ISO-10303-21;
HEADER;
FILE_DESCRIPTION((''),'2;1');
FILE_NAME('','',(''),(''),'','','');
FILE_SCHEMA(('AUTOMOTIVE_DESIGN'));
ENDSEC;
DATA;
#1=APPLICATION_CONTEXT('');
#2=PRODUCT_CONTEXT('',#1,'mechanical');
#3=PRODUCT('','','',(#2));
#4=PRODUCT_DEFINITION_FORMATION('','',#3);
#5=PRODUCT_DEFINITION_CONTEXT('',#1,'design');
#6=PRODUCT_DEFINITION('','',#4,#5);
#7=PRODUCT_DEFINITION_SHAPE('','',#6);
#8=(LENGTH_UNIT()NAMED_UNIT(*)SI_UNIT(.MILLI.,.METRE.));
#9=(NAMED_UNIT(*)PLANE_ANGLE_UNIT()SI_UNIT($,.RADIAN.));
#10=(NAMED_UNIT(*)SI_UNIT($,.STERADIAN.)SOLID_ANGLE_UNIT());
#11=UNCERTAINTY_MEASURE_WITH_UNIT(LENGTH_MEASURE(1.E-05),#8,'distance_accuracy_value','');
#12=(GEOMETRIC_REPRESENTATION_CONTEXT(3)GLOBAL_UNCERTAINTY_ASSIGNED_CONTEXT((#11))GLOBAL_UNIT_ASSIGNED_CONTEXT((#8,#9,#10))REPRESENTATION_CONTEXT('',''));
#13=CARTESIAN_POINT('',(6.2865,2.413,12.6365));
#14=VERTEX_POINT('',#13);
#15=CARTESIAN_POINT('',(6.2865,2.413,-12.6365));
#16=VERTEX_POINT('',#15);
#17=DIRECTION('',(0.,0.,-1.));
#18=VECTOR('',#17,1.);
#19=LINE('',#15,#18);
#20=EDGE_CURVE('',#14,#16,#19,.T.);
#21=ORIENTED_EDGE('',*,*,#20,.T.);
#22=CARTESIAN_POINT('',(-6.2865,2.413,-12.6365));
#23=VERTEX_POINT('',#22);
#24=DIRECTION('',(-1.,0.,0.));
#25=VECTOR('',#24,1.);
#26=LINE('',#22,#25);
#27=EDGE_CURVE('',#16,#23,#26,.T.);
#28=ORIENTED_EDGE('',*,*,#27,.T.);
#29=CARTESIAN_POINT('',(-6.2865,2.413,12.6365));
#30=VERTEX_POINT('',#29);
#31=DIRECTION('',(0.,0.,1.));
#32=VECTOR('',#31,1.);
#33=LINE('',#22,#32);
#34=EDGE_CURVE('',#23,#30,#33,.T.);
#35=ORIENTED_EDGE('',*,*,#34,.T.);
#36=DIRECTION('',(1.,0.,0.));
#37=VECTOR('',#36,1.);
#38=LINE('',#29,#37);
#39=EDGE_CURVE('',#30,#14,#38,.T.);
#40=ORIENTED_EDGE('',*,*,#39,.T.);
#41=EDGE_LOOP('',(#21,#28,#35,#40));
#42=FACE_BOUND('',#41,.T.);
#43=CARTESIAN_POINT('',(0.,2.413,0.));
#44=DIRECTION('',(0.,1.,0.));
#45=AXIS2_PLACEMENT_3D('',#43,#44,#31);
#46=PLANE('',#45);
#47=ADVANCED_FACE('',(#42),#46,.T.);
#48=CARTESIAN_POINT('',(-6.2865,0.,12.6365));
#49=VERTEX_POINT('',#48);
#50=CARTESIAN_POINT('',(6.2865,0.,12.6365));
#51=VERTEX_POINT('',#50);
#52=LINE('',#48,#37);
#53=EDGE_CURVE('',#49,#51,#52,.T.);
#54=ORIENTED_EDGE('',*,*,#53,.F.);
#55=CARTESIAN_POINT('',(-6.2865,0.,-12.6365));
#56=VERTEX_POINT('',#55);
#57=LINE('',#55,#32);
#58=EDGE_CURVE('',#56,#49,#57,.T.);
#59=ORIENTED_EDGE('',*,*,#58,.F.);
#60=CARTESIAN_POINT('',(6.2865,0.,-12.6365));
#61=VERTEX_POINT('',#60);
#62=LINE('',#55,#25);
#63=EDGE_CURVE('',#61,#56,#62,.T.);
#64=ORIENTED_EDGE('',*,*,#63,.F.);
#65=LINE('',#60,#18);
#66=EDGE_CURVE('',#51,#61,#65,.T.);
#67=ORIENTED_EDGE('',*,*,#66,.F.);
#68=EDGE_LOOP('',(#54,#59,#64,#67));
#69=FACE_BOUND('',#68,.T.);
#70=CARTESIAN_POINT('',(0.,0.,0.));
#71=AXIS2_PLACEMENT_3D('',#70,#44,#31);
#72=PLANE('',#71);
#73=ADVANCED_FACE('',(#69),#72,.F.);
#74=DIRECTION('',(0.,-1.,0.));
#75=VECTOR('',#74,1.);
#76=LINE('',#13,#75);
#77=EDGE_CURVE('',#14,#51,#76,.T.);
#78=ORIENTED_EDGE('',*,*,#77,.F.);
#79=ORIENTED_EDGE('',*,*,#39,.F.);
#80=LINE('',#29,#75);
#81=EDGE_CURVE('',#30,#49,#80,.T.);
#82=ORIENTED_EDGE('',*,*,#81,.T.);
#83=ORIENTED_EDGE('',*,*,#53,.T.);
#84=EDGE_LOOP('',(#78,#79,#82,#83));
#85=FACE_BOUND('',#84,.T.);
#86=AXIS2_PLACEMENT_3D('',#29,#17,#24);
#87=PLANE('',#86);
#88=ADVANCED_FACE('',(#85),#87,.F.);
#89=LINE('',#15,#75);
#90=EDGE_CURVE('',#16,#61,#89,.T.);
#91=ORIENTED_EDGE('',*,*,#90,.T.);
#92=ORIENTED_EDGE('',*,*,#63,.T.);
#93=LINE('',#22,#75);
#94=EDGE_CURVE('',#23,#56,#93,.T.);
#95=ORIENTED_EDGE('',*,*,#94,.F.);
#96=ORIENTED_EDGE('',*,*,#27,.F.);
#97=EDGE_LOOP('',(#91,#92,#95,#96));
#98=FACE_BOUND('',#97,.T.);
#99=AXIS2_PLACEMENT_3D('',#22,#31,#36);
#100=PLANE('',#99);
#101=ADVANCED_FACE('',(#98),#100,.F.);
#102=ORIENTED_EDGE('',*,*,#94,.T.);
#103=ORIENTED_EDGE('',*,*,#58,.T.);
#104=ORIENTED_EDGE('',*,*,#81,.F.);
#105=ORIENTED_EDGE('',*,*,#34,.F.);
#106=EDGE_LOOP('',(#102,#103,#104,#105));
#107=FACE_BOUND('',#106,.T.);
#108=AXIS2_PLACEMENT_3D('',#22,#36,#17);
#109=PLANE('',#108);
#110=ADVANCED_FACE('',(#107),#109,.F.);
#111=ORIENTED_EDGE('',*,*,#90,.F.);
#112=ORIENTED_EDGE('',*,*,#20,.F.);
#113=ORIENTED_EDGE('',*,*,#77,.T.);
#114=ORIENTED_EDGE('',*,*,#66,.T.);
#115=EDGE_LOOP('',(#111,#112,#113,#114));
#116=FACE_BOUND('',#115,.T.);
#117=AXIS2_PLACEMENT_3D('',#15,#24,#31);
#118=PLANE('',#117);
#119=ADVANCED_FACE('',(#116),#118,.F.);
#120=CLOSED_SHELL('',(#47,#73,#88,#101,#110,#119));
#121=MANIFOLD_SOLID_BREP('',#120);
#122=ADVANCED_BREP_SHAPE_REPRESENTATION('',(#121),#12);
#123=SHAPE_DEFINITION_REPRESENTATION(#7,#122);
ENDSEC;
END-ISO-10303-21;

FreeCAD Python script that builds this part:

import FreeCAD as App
import Part
import Sketcher
from FreeCAD import Vector
Q = App.Units.Quantity

doc = App.newDocument("Part")
body = doc.addObject("PartDesign::Body", "Body")

# Sketch on XZ plane
sketch1 = doc.addObject("Sketcher::SketchObject", "Sketch")
body.addObject(sketch1)
sketch1.AttachmentSupport = (doc.XZ_Plane, [""])
sketch1.MapMode = "FlatFace"
sketch1.addGeometry(Part.LineSegment(Vector(-6, -13, 0), Vector(-6, 13, 0)), False)
sketch1.addGeometry(Part.LineSegment(Vector(-6, 13, 0), Vector(6, 13, 0)), False)
sketch1.addGeometry(Part.LineSegment(Vector(6, 13, 0), Vector(6, -13, 0)), False)
sketch1.addGeometry(Part.LineSegment(Vector(6, -13, 0), Vector(-6, -13, 0)), False)
sketch1.addConstraint(Sketcher.Constraint("Coincident", 0, 2, 1, 1))
sketch1.addConstraint(Sketcher.Constraint("Coincident", 1, 2, 2, 1))
sketch1.addConstraint(Sketcher.Constraint("Coincident", 2, 2, 3, 1))
sketch1.addConstraint(Sketcher.Constraint("Coincident", 3, 2, 0, 1))
sketch1.addConstraint(Sketcher.Constraint("Vertical", 0))
sketch1.addConstraint(Sketcher.Constraint("Horizontal", 1))
sketch1.addConstraint(Sketcher.Constraint("Vertical", 2))
sketch1.addConstraint(Sketcher.Constraint("Horizontal", 3))
sketch1.addConstraint(Sketcher.Constraint("Symmetric", 0, 2, 2, 2, -1, 1))
sketch1.addConstraint(Sketcher.Constraint("DistanceX", 1, 1, 1, 2, Q("0.495 in")))
sketch1.addConstraint(Sketcher.Constraint("DistanceY", 0, 1, 0, 2, Q("0.995 in")))
pad1 = doc.addObject("PartDesign::Pad", "Pad")
body.addObject(pad1)
pad1.Profile = sketch1
pad1.Length = Q("0.095 in")
pad1.Reversed = True

doc.recompute()
